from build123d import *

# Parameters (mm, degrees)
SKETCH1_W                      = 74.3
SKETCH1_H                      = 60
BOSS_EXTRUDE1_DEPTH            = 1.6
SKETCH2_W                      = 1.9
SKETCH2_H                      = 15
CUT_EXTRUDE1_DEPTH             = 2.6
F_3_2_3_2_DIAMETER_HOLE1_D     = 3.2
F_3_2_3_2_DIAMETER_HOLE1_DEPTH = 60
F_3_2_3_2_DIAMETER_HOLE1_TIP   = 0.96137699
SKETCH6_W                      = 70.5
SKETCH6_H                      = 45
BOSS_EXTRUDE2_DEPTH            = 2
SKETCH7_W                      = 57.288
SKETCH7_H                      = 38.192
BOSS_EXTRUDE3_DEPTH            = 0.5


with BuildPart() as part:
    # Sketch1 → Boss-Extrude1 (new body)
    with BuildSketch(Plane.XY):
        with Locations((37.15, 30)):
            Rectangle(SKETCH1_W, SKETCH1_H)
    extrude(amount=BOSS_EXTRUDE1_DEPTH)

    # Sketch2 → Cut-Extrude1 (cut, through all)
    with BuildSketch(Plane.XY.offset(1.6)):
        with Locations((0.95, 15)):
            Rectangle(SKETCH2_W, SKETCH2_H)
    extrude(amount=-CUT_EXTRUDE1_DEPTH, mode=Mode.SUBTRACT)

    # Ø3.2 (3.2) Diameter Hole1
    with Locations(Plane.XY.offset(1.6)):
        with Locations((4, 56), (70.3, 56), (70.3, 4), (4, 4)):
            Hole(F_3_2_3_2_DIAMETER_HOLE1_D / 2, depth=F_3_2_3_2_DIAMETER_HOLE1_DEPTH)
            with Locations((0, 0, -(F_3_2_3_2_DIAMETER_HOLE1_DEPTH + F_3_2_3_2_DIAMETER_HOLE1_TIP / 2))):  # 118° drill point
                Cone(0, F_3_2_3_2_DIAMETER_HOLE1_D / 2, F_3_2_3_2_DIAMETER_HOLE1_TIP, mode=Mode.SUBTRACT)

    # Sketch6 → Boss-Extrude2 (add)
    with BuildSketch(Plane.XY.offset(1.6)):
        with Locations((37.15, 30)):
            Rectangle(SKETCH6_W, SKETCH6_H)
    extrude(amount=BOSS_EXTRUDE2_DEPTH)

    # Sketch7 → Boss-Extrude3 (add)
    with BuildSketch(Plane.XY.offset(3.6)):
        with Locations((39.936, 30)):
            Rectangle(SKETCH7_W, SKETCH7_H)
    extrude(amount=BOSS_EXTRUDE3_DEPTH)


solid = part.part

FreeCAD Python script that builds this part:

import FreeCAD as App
import Part
import Sketcher
from FreeCAD import Vector
Q = App.Units.Quantity

doc = App.newDocument("Part")
body = doc.addObject("PartDesign::Body", "Body")

sketch1 = doc.addObject("Sketcher::SketchObject", "Sketch")
body.addObject(sketch1)
sketch1.AttachmentSupport = (doc.XY_Plane, [""])
sketch1.MapMode = "FlatFace"
sketch1.addGeometry(Part.LineSegment(Vector(0, 60, 0), Vector(0, 0, 0)), False)
sketch1.addGeometry(Part.LineSegment(Vector(0, 0, 0), Vector(74, 0, 0)), False)
sketch1.addGeometry(Part.LineSegment(Vector(74, 0, 0), Vector(74, 60, 0)), False)
sketch1.addGeometry(Part.LineSegment(Vector(74, 60, 0), Vector(0, 60, 0)), False)
sketch1.addConstraint(Sketcher.Constraint("Coincident", 0, 2, 1, 1))
sketch1.addConstraint(Sketcher.Constraint("Coincident", 1, 2, 2, 1))
sketch1.addConstraint(Sketcher.Constraint("Coincident", 2, 2, 3, 1))
sketch1.addConstraint(Sketcher.Constraint("Coincident", 3, 2, 0, 1))
sketch1.addConstraint(Sketcher.Constraint("Vertical", 0))
sketch1.addConstraint(Sketcher.Constraint("Horizontal", 1))
sketch1.addConstraint(Sketcher.Constraint("Vertical", 2))
sketch1.addConstraint(Sketcher.Constraint("Horizontal", 3))
sketch1.addConstraint(Sketcher.Constraint("Coincident", 0, 2, -1, 1))
sketch1.addConstraint(Sketcher.Constraint("DistanceY", 0, 2, 0, 1, Q("60 mm")))
sketch1.addConstraint(Sketcher.Constraint("DistanceX", 1, 1, 1, 2, Q("74.3 mm")))
pad1 = doc.addObject("PartDesign::Pad", "Pad")
body.addObject(pad1)
pad1.Profile = sketch1
pad1.Length = 1.6

sketch2 = doc.addObject("Sketcher::SketchObject", "Sketch001")
body.addObject(sketch2)
sketch2.AttachmentSupport = (doc.XY_Plane, [""])
sketch2.MapMode = "FlatFace"
sketch2.AttachmentOffset = App.Placement(Vector(0, 0, 1.6), App.Rotation())
sketch2.addGeometry(Part.LineSegment(Vector(0, 22.5, 0), Vector(0, 7.5, 0)), False)
sketch2.addGeometry(Part.LineSegment(Vector(0, 7.5, 0), Vector(1.9, 7.5, 0)), False)
sketch2.addGeometry(Part.LineSegment(Vector(1.9, 7.5, 0), Vector(1.9, 22.5, 0)), False)
sketch2.addGeometry(Part.LineSegment(Vector(1.9, 22.5, 0), Vector(0, 22.5, 0)), False)
sketch2.addConstraint(Sketcher.Constraint("Coincident", 0, 2, 1, 1))
sketch2.addConstraint(Sketcher.Constraint("Coincident", 1, 2, 2, 1))
sketch2.addConstraint(Sketcher.Constraint("Coincident", 2, 2, 3, 1))
sketch2.addConstraint(Sketcher.Constraint("Coincident", 3, 2, 0, 1))
sketch2.addConstraint(Sketcher.Constraint("Vertical", 0))
sketch2.addConstraint(Sketcher.Constraint("Horizontal", 1))
sketch2.addConstraint(Sketcher.Constraint("Vertical", 2))
sketch2.addConstraint(Sketcher.Constraint("Horizontal", 3))
sketch2.addConstraint(Sketcher.Constraint("PointOnObject", 0, 2, -2))
sketch2.addConstraint(Sketcher.Constraint("DistanceY", 0, 2, 0, 1, Q("15 mm")))
sketch2.addConstraint(Sketcher.Constraint("DistanceX", 1, 1, 1, 2, Q("1.9 mm")))
sketch2.addConstraint(Sketcher.Constraint("DistanceY", -1, 1, 0, 2, Q("7.5 mm")))
pocket1 = doc.addObject("PartDesign::Pocket", "Pocket")
body.addObject(pocket1)
pocket1.Profile = sketch2
pocket1.Type = "ThroughAll"

sketch3 = doc.addObject("Sketcher::SketchObject", "Sketch002")
body.addObject(sketch3)
sketch3.AttachmentSupport = (doc.XY_Plane, [""])
sketch3.MapMode = "FlatFace"
sketch3.AttachmentOffset = App.Placement(Vector(0, 0, 1.6), App.Rotation())
sketch3.addGeometry(Part.Circle(Vector(4, 56, 0), Vector(0, 0, 1), 1.6), False)
sketch3.addGeometry(Part.Circle(Vector(70.3, 56, 0), Vector(0, 0, 1), 1.6), False)
sketch3.addGeometry(Part.Circle(Vector(70.3, 4, 0), Vector(0, 0, 1), 1.6), False)
sketch3.addGeometry(Part.Circle(Vector(4, 4, 0), Vector(0, 0, 1), 1.6), False)
sketch3.addConstraint(Sketcher.Constraint("Equal", 0, 1))
sketch3.addConstraint(Sketcher.Constraint("Equal", 1, 2))
sketch3.addConstraint(Sketcher.Constraint("Equal", 2, 3))
sketch3.addConstraint(Sketcher.Constraint("Horizontal", 0, 3, 1, 3))
sketch3.addConstraint(Sketcher.Constraint("Horizontal", 2, 3, 3, 3))
sketch3.addConstraint(Sketcher.Constraint("Vertical", 1, 3, 2, 3))
sketch3.addConstraint(Sketcher.Constraint("Vertical", 0, 3, 3, 3))
sketch3.addConstraint(Sketcher.Constraint("Diameter", 0, Q("3.2 mm")))
sketch3.addConstraint(Sketcher.Constraint("DistanceX", -1, 1, 0, 3, Q("4 mm")))
sketch3.addConstraint(Sketcher.Constraint("DistanceY", -1, 1, 0, 3, Q("56 mm")))
sketch3.addConstraint(Sketcher.Constraint("DistanceY", -1, 1, 2, 3, Q("4 mm")))
sketch3.addConstraint(Sketcher.Constraint("DistanceX", -1, 1, 1, 3, Q("70.3 mm")))
doc.recompute()
hole = doc.addObject("PartDesign::Hole", "Hole")
body.addObject(hole)
hole.Profile = sketch3
hole.ThreadType = "None"
hole.Diameter = 3.2
hole.DepthType = "Dimension"
hole.Depth = 60
hole.DrillPoint = "Angled"
hole.DrillPointAngle = 118

sketch4 = doc.addObject("Sketcher::SketchObject", "Sketch003")
body.addObject(sketch4)
sketch4.AttachmentSupport = (doc.XY_Plane, [""])
sketch4.MapMode = "FlatFace"
sketch4.AttachmentOffset = App.Placement(Vector(0, 0, 1.6), App.Rotation())
sketch4.addGeometry(Part.LineSegment(Vector(2, 52, 0), Vector(2, 8, 0)), False)
sketch4.addGeometry(Part.LineSegment(Vector(2, 8, 0), Vector(72, 8, 0)), False)
sketch4.addGeometry(Part.LineSegment(Vector(72, 8, 0), Vector(72, 52, 0)), False)
sketch4.addGeometry(Part.LineSegment(Vector(72, 52, 0), Vector(2, 52, 0)), False)
sketch4.addConstraint(Sketcher.Constraint("Coincident", 0, 2, 1, 1))
sketch4.addConstraint(Sketcher.Constraint("Coincident", 1, 2, 2, 1))
sketch4.addConstraint(Sketcher.Constraint("Coincident", 2, 2, 3, 1))
sketch4.addConstraint(Sketcher.Constraint("Coincident", 3, 2, 0, 1))
sketch4.addConstraint(Sketcher.Constraint("Vertical", 0))
sketch4.addConstraint(Sketcher.Constraint("Horizontal", 1))
sketch4.addConstraint(Sketcher.Constraint("Vertical", 2))
sketch4.addConstraint(Sketcher.Constraint("Horizontal", 3))
sketch4.addConstraint(Sketcher.Constraint("DistanceY", 0, 2, 0, 1, Q("45 mm")))
sketch4.addConstraint(Sketcher.Constraint("DistanceX", 1, 1, 1, 2, Q("70.5 mm")))
sketch4.addConstraint(Sketcher.Constraint("DistanceX", -1, 1, 0, 2, Q("1.9 mm")))
sketch4.addConstraint(Sketcher.Constraint("DistanceY", -1, 1, 0, 2, Q("7.5 mm")))
pad2 = doc.addObject("PartDesign::Pad", "Pad001")
body.addObject(pad2)
pad2.Profile = sketch4
pad2.Length = 2

sketch5 = doc.addObject("Sketcher::SketchObject", "Sketch004")
body.addObject(sketch5)
sketch5.AttachmentSupport = (doc.XY_Plane, [""])
sketch5.MapMode = "FlatFace"
sketch5.AttachmentOffset = App.Placement(Vector(0, 0, 3.6), App.Rotation())
sketch5.addGeometry(Part.LineSegment(Vector(11, 49, 0), Vector(11, 11, 0)), False)
sketch5.addGeometry(Part.LineSegment(Vector(11, 11, 0), Vector(69, 11, 0)), False)
sketch5.addGeometry(Part.LineSegment(Vector(69, 11, 0), Vector(69, 49, 0)), False)
sketch5.addGeometry(Part.LineSegment(Vector(69, 49, 0), Vector(11, 49, 0)), False)
sketch5.addConstraint(Sketcher.Constraint("Coincident", 0, 2, 1, 1))
sketch5.addConstraint(Sketcher.Constraint("Coincident", 1, 2, 2, 1))
sketch5.addConstraint(Sketcher.Constraint("Coincident", 2, 2, 3, 1))
sketch5.addConstraint(Sketcher.Constraint("Coincident", 3, 2, 0, 1))
sketch5.addConstraint(Sketcher.Constraint("Vertical", 0))
sketch5.addConstraint(Sketcher.Constraint("Horizontal", 1))
sketch5.addConstraint(Sketcher.Constraint("Vertical", 2))
sketch5.addConstraint(Sketcher.Constraint("Horizontal", 3))
sketch5.addConstraint(Sketcher.Constraint("DistanceX", 1, 1, 1, 2, Q("57.288 mm")))
sketch5.addConstraint(Sketcher.Constraint("DistanceY", 0, 2, 0, 1, Q("38.192 mm")))
sketch5.addConstraint(Sketcher.Constraint("DistanceX", -1, 1, 1, 2, Q("68.58 mm")))
sketch5.addConstraint(Sketcher.Constraint("DistanceY", -1, 1, 0, 2, Q("10.904 mm")))
pad3 = doc.addObject("PartDesign::Pad", "Pad002")
body.addObject(pad3)
pad3.Profile = sketch5
pad3.Length = 0.5

doc.recompute()
